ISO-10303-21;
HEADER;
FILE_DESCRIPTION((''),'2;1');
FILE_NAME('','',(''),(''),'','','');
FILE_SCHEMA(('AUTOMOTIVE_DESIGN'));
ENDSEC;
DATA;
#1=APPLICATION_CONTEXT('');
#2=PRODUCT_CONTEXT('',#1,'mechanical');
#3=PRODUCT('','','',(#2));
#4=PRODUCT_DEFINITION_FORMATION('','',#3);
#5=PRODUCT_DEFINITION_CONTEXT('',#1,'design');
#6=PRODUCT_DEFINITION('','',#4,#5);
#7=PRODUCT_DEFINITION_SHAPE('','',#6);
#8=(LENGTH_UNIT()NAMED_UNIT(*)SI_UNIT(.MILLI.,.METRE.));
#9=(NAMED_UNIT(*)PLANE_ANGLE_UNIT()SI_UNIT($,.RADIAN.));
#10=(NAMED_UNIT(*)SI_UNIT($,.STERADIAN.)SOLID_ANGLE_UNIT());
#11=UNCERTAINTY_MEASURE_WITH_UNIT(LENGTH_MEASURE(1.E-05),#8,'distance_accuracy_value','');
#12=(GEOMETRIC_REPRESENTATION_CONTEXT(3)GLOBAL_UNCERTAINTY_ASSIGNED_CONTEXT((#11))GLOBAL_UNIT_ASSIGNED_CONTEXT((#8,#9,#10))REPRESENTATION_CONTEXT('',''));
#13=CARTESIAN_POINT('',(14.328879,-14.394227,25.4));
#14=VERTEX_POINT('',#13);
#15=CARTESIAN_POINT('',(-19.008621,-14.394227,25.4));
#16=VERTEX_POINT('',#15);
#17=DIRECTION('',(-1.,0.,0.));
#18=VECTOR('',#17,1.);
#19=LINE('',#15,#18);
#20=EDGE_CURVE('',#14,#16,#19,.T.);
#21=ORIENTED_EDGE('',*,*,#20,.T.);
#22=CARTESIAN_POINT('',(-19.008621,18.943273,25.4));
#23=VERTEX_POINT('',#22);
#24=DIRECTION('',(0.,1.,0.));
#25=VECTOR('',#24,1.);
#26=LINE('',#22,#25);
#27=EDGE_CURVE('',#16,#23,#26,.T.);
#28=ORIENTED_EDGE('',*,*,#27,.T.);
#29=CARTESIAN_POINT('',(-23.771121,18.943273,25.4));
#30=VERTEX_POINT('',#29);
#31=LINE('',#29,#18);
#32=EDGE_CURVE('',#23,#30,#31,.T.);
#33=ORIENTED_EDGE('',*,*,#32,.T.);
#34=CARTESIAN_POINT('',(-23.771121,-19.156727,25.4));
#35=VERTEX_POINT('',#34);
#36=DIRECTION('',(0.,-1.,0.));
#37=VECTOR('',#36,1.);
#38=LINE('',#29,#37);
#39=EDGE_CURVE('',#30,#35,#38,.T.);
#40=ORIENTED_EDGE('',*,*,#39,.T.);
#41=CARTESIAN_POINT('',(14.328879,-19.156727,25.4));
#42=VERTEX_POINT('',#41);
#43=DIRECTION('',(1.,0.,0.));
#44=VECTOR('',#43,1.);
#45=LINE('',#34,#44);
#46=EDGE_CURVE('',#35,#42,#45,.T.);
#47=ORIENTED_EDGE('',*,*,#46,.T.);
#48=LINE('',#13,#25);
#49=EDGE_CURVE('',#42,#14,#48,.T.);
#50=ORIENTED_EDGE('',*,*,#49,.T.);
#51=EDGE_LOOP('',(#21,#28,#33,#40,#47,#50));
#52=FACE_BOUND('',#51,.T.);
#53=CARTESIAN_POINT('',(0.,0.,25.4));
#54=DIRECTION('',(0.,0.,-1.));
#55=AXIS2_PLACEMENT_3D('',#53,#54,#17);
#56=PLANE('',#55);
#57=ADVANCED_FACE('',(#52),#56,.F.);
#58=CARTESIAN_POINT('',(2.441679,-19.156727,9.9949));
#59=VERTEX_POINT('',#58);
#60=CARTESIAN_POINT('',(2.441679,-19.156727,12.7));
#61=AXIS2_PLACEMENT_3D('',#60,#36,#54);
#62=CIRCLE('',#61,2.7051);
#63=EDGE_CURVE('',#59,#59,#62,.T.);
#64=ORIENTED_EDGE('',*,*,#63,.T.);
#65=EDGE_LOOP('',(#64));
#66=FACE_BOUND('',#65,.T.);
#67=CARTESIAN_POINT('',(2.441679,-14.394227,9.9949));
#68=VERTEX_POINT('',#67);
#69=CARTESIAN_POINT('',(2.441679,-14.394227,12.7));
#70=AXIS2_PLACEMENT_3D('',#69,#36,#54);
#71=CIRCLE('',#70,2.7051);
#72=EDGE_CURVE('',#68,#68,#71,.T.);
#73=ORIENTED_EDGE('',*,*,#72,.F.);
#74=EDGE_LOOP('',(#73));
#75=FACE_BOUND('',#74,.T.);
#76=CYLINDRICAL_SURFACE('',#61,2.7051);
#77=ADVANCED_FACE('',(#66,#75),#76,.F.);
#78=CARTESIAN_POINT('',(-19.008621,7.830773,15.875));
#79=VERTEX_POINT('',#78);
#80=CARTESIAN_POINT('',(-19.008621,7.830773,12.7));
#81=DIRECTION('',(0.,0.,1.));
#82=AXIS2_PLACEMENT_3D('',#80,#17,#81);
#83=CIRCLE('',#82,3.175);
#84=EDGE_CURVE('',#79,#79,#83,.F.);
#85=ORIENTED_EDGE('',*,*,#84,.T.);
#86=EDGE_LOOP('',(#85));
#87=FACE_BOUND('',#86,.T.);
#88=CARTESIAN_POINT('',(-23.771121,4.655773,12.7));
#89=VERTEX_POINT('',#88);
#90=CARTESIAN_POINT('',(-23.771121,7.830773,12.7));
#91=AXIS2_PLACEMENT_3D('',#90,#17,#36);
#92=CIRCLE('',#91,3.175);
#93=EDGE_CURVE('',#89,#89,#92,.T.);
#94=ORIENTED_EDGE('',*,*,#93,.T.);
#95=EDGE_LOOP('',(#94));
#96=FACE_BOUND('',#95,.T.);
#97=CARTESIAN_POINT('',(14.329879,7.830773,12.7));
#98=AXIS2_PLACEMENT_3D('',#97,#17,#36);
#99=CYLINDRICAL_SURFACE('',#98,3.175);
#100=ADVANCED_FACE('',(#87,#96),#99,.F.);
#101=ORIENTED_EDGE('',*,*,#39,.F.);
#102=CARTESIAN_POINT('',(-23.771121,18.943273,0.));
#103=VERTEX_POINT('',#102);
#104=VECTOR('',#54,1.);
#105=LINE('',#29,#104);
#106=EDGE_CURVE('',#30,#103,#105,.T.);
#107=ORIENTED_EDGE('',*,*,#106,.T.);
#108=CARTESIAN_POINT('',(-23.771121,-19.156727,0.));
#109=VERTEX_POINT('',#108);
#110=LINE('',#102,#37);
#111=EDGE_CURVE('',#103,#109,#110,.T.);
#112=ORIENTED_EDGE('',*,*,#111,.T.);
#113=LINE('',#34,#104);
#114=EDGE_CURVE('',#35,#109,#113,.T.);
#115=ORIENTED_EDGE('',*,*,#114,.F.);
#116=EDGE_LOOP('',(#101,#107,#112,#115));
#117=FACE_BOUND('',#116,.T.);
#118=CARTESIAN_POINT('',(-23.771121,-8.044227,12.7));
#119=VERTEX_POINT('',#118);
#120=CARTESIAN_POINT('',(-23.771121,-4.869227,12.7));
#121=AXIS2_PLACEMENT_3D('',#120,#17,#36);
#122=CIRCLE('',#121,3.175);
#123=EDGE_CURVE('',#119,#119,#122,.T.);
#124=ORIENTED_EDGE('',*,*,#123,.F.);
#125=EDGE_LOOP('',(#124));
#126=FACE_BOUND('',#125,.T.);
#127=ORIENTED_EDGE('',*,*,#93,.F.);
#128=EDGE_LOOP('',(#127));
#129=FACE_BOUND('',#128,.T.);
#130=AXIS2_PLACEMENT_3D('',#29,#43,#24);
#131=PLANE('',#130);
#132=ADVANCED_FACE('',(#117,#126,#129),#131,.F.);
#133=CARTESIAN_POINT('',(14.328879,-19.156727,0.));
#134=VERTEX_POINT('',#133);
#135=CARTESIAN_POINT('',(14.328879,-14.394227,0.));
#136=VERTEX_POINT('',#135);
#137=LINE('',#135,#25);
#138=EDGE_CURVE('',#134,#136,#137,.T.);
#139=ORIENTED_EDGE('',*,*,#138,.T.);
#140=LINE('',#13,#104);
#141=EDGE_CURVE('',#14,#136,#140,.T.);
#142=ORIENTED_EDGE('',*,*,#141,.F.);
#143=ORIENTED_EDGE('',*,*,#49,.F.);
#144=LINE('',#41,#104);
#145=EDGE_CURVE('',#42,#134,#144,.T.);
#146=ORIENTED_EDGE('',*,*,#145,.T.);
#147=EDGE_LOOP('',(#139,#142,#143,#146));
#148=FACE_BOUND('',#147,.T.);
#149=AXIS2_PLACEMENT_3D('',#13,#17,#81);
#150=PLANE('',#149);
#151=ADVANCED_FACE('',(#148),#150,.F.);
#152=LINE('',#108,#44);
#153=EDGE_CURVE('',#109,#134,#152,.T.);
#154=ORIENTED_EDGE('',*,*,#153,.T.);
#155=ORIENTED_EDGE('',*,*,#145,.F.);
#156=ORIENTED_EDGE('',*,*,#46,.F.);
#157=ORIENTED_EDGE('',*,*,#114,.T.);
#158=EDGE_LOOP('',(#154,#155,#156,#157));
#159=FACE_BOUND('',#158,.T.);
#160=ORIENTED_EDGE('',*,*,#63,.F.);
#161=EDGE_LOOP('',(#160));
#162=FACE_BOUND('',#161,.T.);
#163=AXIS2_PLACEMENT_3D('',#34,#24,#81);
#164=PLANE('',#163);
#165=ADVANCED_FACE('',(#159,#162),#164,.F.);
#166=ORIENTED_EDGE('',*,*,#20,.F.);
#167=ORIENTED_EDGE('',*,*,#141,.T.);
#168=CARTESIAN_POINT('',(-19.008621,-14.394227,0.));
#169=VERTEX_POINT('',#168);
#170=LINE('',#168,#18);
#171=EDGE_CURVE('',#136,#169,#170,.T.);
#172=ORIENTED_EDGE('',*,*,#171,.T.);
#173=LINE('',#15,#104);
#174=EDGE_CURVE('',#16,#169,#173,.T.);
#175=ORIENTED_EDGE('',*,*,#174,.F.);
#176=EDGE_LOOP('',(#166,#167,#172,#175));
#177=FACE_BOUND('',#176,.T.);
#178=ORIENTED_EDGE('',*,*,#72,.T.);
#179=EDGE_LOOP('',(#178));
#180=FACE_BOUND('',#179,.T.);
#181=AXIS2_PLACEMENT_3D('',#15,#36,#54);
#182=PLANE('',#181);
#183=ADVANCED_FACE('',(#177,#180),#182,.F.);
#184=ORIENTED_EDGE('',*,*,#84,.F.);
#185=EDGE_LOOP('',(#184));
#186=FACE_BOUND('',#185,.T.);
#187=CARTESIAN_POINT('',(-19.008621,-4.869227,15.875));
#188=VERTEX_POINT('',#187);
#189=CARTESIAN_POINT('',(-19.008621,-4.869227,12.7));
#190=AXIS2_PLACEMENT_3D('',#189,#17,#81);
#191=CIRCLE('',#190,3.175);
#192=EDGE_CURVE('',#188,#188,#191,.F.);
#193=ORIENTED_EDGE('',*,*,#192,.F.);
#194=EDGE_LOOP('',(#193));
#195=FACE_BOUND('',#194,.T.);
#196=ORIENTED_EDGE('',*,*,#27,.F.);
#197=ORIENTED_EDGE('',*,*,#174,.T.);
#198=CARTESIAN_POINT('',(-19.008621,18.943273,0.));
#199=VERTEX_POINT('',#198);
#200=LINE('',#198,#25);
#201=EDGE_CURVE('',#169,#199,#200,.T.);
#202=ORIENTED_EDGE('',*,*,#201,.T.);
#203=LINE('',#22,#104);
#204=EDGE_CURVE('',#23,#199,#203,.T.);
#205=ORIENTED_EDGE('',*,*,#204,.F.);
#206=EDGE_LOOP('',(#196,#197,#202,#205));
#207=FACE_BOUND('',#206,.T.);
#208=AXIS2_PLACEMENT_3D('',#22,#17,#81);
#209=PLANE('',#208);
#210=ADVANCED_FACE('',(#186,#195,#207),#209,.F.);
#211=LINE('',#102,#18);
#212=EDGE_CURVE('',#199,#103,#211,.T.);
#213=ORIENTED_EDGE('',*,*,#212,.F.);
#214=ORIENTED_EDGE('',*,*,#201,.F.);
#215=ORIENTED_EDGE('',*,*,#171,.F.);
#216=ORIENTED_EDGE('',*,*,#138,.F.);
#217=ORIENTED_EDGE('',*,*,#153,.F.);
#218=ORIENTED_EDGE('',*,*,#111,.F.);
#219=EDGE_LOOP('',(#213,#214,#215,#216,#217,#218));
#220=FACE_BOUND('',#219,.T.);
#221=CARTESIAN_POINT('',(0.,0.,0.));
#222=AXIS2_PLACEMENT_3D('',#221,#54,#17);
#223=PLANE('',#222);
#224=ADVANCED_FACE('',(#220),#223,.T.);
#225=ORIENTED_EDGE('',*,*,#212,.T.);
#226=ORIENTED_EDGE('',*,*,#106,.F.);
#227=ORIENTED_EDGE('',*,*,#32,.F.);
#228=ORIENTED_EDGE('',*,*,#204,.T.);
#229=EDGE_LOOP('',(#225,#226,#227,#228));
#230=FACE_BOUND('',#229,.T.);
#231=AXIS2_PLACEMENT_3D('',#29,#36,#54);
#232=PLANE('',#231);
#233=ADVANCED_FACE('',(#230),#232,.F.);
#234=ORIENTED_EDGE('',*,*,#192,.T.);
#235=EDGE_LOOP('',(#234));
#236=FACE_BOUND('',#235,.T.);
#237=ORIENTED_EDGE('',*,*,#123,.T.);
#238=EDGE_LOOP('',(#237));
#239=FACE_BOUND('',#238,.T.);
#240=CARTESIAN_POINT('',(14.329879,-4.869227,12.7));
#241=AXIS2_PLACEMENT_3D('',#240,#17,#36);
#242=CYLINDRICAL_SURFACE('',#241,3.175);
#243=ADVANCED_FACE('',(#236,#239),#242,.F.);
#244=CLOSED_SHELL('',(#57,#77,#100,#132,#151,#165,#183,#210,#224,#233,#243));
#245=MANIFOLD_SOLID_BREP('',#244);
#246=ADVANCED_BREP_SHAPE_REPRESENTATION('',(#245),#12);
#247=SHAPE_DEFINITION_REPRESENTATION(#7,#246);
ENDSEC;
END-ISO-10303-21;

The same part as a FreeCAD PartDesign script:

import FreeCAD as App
import Part
import Sketcher

V = App.Vector
Q = App.Units.Quantity


def add_polygon(sketch, points):
    """Adds a closed chain of lines whose ends are joined by coincident constraints."""
    first, n = sketch.GeometryCount, len(points)
    for a, b in zip(points, points[1:] + points[:1]):
        sketch.addGeometry(Part.LineSegment(App.Vector(*a, 0), App.Vector(*b, 0)), False)
    for i in range(n):
        sketch.addConstraint(Sketcher.Constraint("Coincident", first + i, 2, first + (i + 1) % n, 1))

doc = App.newDocument("Part")
body = doc.addObject("PartDesign::Body", "Body")

# Sketch on XY plane
sketch1 = doc.addObject("Sketcher::SketchObject", "Sketch")
body.addObject(sketch1)
sketch1.AttachmentSupport = (doc.XY_Plane, [""])
sketch1.MapMode = "FlatFace"
add_polygon(sketch1, [(-23.771121, 18.943273), (-23.771121, -19.156727), (14.328879, -19.156727), (14.328879, -14.394227), (-19.008621, -14.394227), (-19.008621, 18.943273)])  # lines 0-5
sketch1.addConstraint([
    Sketcher.Constraint("Vertical", 0),
    Sketcher.Constraint("Horizontal", 1),
    Sketcher.Constraint("Vertical", 2),
    Sketcher.Constraint("Horizontal", 3),
    Sketcher.Constraint("Vertical", 4),
    Sketcher.Constraint("Horizontal", 5),
    Sketcher.Constraint("Equal", 1, 0),
    Sketcher.Constraint("Equal", 5, 2),
    Sketcher.Constraint("DistanceX", 1, 1, 1, 2, Q("1.5 in")),
    Sketcher.Constraint("DistanceX", 3, 2, 3, 1, Q("1.3125 in")),
    Sketcher.Constraint("DistanceX", 0, 2, -1, 1, 23.771121),
    Sketcher.Constraint("DistanceY", 0, 2, -1, 1, 19.156727),
])
pad1 = doc.addObject("PartDesign::Pad", "Pad")
body.addObject(pad1)
pad1.Profile = sketch1
pad1.Length = Q("1 in")

# Sketch on YZ plane
sketch2 = doc.addObject("Sketcher::SketchObject", "Sketch001")
body.addObject(sketch2)
sketch2.AttachmentSupport = (doc.YZ_Plane, [""])
sketch2.MapMode = "FlatFace"
sketch2.AttachmentOffset = App.Placement(V(0, 0, -23.771121), App.Rotation())
sketch2.addGeometry(Part.Circle(V(7.830773, 12.7, 0), V(0, 0, 1), 3.175), False)
sketch2.addConstraint([
    Sketcher.Constraint("Diameter", 0, Q("0.25 in")),
    Sketcher.Constraint("DistanceY", -1, 1, 0, 3, Q("0.5 in")),
    Sketcher.Constraint("DistanceX", -1, 1, 0, 3, 7.830773),
])
pocket1 = doc.addObject("PartDesign::Pocket", "Pocket")
body.addObject(pocket1)
pocket1.Profile = sketch2
pocket1.Type = "UpToFirst"
pocket1.Reversed = True

# Sketch on YZ plane
sketch3 = doc.addObject("Sketcher::SketchObject", "Sketch002")
body.addObject(sketch3)
sketch3.AttachmentSupport = (doc.YZ_Plane, [""])
sketch3.MapMode = "FlatFace"
sketch3.AttachmentOffset = App.Placement(V(0, 0, -23.771121), App.Rotation())
sketch3.addGeometry(Part.Circle(V(-4.869227, 12.7, 0), V(0, 0, 1), 3.175), False)
sketch3.addConstraint([
    Sketcher.Constraint("Diameter", 0, Q("0.25 in")),
    Sketcher.Constraint("DistanceY", -1, 1, 0, 3, Q("0.5 in")),
    Sketcher.Constraint("DistanceX", 0, 3, -1, 1, 4.869227),
])
pocket2 = doc.addObject("PartDesign::Pocket", "Pocket001")
body.addObject(pocket2)
pocket2.Profile = sketch3
pocket2.Type = "UpToFirst"
pocket2.Reversed = True

# Sketch on XZ plane
sketch4 = doc.addObject("Sketcher::SketchObject", "Sketch003")
body.addObject(sketch4)
sketch4.AttachmentSupport = (doc.XZ_Plane, [""])
sketch4.MapMode = "FlatFace"
sketch4.AttachmentOffset = App.Placement(V(0, 0, 19.156727), App.Rotation())
sketch4.addGeometry(Part.Circle(V(2.441679, 12.7, 0), V(0, 0, 1), 2.7051), False)
sketch4.addConstraint([
    Sketcher.Constraint("Diameter", 0, Q("0.213 in")),
    Sketcher.Constraint("DistanceY", -1, 1, 0, 3, Q("0.5 in")),
    Sketcher.Constraint("DistanceX", -1, 1, 0, 3, 2.441679),
])
doc.recompute()
hole = doc.addObject("PartDesign::Hole", "Hole")
body.addObject(hole)
hole.Profile = sketch4
hole.ThreadType = "None"
hole.Diameter = Q("0.213 in")
hole.DepthType = "ThroughAll"

doc.recompute()
